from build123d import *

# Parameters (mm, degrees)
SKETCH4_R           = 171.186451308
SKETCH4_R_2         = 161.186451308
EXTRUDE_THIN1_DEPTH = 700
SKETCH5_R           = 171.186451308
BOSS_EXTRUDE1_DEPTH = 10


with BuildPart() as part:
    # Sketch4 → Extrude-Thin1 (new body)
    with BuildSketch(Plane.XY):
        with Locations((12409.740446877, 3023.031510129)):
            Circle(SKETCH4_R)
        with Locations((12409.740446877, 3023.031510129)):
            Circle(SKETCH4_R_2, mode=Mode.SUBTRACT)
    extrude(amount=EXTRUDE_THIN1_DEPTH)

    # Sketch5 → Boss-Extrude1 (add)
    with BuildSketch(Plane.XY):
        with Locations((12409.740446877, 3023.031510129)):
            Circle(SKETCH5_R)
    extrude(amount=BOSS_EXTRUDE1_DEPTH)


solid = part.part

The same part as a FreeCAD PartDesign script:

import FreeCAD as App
import Part
import Sketcher

doc = App.newDocument("Part")
body = doc.addObject("PartDesign::Body", "Body")

# Sketch on XY plane
sketch1 = body.newObject("Sketcher::SketchObject", "Sketch")
sketch1.AttachmentSupport = (doc.getObject("XY_Plane"), [""])
sketch1.MapMode = "FlatFace"
sketch1.addGeometry(Part.Circle(App.Vector(12410, 3023, 0), App.Vector(0, 0, 1), 171), False)
sketch1.addGeometry(Part.Circle(App.Vector(12410, 3023, 0), App.Vector(0, 0, 1), 161), False)
sketch1.addConstraint(Sketcher.Constraint("Coincident", 1, 3, 0, 3))
sketch1.addConstraint(Sketcher.Constraint("Diameter", 0, 342.372903))
sketch1.addConstraint(Sketcher.Constraint("Diameter", 1, 322.372903))
sketch1.addConstraint(Sketcher.Constraint("DistanceY", -1, 1, 0, 3, 3023.03151))
sketch1.addConstraint(Sketcher.Constraint("DistanceX", -1, 1, 0, 3, 12409.740447))
pad1 = body.newObject("PartDesign::Pad", "Pad")
pad1.Profile = sketch1
pad1.Length = 700

# Sketch on XY plane
sketch2 = body.newObject("Sketcher::SketchObject", "Sketch001")
sketch2.AttachmentSupport = (doc.getObject("XY_Plane"), [""])
sketch2.MapMode = "FlatFace"
sketch2.addGeometry(Part.Circle(App.Vector(12410, 3023, 0), App.Vector(0, 0, 1), 171), False)
sketch2.addConstraint(Sketcher.Constraint("Diameter", 0, 342.372903))
sketch2.addConstraint(Sketcher.Constraint("DistanceY", -1, 1, 0, 3, 3023.03151))
sketch2.addConstraint(Sketcher.Constraint("DistanceX", -1, 1, 0, 3, 12409.740447))
pad2 = body.newObject("PartDesign::Pad", "Pad001")
pad2.Profile = sketch2
pad2.Length = 10

doc.recompute()
